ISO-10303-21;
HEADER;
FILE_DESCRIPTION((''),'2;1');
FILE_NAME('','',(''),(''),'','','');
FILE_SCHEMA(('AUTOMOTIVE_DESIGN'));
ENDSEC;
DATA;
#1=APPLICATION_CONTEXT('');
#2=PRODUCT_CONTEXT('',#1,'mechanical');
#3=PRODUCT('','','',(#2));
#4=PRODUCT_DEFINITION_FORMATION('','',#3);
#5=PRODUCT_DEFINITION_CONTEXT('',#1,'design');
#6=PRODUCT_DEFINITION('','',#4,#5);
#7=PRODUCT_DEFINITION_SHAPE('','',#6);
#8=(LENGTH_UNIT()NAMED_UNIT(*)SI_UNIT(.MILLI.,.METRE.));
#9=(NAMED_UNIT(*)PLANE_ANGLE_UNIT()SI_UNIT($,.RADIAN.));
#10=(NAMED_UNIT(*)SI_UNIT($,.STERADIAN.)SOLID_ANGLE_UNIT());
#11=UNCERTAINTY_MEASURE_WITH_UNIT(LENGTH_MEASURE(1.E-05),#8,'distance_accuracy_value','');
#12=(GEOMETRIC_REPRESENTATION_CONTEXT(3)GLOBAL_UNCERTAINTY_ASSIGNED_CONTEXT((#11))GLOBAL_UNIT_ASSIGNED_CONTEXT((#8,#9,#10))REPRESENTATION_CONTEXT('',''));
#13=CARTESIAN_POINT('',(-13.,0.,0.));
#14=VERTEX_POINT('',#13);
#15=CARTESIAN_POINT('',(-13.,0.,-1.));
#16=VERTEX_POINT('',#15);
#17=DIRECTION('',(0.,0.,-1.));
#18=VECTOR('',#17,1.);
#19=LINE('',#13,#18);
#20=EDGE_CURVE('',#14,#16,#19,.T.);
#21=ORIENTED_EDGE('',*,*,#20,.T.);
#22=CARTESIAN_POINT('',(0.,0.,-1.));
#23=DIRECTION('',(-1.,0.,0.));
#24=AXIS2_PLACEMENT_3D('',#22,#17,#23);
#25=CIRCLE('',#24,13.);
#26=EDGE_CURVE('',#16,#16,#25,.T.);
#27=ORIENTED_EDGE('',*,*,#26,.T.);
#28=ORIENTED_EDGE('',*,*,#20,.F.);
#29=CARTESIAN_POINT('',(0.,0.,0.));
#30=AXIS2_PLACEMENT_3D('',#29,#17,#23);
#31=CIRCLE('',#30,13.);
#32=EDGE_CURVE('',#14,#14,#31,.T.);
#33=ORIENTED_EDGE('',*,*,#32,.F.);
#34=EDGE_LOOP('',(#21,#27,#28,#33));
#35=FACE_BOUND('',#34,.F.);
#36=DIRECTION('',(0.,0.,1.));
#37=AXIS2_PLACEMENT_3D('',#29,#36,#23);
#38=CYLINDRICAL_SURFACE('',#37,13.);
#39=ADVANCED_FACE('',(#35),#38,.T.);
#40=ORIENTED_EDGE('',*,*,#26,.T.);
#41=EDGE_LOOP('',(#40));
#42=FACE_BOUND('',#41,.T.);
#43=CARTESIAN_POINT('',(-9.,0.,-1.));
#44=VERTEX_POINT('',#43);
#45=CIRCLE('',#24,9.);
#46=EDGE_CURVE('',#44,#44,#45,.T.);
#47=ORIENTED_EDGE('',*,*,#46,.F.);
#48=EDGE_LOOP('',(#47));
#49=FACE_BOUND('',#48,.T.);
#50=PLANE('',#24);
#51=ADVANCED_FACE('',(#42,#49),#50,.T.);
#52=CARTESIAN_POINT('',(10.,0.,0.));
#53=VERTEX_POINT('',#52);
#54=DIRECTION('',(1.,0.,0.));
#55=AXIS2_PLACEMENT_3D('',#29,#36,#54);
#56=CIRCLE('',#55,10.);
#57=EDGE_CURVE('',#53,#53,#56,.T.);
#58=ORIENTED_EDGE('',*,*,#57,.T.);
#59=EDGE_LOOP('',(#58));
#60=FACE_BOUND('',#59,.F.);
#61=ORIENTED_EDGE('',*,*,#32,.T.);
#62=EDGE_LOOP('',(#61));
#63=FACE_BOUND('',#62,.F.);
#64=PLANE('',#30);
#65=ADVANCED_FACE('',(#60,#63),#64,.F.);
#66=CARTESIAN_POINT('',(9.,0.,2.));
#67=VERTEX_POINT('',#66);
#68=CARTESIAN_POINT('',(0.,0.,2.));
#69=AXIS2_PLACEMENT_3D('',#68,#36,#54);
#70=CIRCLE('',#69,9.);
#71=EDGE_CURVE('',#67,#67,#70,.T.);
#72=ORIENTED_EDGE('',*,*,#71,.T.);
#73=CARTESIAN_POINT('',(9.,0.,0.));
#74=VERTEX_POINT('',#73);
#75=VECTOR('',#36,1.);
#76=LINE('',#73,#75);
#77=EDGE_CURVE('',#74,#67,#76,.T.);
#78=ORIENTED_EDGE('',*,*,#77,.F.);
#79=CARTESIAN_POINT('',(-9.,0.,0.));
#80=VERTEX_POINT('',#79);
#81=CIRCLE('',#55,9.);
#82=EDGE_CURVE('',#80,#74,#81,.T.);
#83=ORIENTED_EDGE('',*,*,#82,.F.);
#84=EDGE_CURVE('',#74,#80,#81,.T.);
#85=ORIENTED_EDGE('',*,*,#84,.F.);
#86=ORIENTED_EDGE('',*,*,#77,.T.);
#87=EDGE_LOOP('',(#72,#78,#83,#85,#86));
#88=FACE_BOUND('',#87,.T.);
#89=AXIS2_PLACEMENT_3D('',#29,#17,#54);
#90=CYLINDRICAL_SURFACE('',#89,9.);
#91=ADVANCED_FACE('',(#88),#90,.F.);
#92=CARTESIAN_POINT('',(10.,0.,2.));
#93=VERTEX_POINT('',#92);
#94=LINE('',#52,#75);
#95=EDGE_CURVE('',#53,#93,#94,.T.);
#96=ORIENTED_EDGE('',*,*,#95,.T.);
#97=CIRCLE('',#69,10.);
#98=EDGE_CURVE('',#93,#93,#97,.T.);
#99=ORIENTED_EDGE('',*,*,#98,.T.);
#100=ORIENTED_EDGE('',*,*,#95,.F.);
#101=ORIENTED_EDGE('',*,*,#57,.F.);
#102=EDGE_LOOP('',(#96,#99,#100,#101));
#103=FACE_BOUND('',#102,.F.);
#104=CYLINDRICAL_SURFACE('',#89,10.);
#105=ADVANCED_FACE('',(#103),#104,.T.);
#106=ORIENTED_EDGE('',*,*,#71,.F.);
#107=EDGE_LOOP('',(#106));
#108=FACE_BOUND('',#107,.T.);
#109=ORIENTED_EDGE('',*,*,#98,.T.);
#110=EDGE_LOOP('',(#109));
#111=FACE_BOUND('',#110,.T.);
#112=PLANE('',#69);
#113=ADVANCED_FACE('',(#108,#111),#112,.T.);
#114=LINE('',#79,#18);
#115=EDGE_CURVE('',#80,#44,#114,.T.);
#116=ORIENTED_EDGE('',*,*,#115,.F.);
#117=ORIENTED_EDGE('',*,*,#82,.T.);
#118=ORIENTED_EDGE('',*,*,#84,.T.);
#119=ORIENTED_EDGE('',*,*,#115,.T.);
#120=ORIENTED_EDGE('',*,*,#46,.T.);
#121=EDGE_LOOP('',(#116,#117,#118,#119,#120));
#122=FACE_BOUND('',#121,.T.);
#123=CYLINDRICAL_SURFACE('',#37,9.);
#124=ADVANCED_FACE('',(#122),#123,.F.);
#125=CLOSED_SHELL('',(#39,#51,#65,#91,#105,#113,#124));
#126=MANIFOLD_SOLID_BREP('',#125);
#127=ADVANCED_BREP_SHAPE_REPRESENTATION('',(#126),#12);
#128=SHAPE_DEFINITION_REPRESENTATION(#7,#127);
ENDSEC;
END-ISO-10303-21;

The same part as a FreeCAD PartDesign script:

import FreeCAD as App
import Part
import Sketcher

doc = App.newDocument("Part")
body = doc.addObject("PartDesign::Body", "Body")

sketch1 = doc.addObject("Sketcher::SketchObject", "Sketch")
body.addObject(sketch1)
sketch1.AttachmentSupport = (doc.XY_Plane, [""])
sketch1.MapMode = "FlatFace"
sketch1.addGeometry([
    Part.Circle(App.Vector(0, 0, 0), App.Vector(0, 0, 1), 10),
    Part.Circle(App.Vector(0, 0, 0), App.Vector(0, 0, 1), 9),
], False)
sketch1.addConstraint([
    Sketcher.Constraint("Coincident", 0, 3, -1, 1),
    Sketcher.Constraint("Coincident", 1, 3, -1, 1),
    Sketcher.Constraint("Diameter", 0, 20.0),
    Sketcher.Constraint("Diameter", 1, 18.0),
])
pad1 = doc.addObject("PartDesign::Pad", "Pad")
body.addObject(pad1)
pad1.Profile = sketch1
pad1.Length = 2

sketch2 = doc.addObject("Sketcher::SketchObject", "Sketch001")
body.addObject(sketch2)
sketch2.AttachmentSupport = (doc.XY_Plane, [""])
sketch2.MapMode = "FlatFace"
sketch2.addGeometry([
    Part.Circle(App.Vector(0, 0, 0), App.Vector(0, 0, 1), 13),
    Part.Circle(App.Vector(0, 0, 0), App.Vector(0, 0, 1), 9),
], False)
sketch2.addConstraint([
    Sketcher.Constraint("Coincident", 0, 3, -1, 1),
    Sketcher.Constraint("Coincident", 1, 3, -1, 1),
    Sketcher.Constraint("Diameter", 0, 26.0),
    Sketcher.Constraint("Diameter", 1, 18.0),
])
pad2 = doc.addObject("PartDesign::Pad", "Pad001")
body.addObject(pad2)
pad2.Profile = sketch2
pad2.Length = 1
pad2.Reversed = True

doc.recompute()
